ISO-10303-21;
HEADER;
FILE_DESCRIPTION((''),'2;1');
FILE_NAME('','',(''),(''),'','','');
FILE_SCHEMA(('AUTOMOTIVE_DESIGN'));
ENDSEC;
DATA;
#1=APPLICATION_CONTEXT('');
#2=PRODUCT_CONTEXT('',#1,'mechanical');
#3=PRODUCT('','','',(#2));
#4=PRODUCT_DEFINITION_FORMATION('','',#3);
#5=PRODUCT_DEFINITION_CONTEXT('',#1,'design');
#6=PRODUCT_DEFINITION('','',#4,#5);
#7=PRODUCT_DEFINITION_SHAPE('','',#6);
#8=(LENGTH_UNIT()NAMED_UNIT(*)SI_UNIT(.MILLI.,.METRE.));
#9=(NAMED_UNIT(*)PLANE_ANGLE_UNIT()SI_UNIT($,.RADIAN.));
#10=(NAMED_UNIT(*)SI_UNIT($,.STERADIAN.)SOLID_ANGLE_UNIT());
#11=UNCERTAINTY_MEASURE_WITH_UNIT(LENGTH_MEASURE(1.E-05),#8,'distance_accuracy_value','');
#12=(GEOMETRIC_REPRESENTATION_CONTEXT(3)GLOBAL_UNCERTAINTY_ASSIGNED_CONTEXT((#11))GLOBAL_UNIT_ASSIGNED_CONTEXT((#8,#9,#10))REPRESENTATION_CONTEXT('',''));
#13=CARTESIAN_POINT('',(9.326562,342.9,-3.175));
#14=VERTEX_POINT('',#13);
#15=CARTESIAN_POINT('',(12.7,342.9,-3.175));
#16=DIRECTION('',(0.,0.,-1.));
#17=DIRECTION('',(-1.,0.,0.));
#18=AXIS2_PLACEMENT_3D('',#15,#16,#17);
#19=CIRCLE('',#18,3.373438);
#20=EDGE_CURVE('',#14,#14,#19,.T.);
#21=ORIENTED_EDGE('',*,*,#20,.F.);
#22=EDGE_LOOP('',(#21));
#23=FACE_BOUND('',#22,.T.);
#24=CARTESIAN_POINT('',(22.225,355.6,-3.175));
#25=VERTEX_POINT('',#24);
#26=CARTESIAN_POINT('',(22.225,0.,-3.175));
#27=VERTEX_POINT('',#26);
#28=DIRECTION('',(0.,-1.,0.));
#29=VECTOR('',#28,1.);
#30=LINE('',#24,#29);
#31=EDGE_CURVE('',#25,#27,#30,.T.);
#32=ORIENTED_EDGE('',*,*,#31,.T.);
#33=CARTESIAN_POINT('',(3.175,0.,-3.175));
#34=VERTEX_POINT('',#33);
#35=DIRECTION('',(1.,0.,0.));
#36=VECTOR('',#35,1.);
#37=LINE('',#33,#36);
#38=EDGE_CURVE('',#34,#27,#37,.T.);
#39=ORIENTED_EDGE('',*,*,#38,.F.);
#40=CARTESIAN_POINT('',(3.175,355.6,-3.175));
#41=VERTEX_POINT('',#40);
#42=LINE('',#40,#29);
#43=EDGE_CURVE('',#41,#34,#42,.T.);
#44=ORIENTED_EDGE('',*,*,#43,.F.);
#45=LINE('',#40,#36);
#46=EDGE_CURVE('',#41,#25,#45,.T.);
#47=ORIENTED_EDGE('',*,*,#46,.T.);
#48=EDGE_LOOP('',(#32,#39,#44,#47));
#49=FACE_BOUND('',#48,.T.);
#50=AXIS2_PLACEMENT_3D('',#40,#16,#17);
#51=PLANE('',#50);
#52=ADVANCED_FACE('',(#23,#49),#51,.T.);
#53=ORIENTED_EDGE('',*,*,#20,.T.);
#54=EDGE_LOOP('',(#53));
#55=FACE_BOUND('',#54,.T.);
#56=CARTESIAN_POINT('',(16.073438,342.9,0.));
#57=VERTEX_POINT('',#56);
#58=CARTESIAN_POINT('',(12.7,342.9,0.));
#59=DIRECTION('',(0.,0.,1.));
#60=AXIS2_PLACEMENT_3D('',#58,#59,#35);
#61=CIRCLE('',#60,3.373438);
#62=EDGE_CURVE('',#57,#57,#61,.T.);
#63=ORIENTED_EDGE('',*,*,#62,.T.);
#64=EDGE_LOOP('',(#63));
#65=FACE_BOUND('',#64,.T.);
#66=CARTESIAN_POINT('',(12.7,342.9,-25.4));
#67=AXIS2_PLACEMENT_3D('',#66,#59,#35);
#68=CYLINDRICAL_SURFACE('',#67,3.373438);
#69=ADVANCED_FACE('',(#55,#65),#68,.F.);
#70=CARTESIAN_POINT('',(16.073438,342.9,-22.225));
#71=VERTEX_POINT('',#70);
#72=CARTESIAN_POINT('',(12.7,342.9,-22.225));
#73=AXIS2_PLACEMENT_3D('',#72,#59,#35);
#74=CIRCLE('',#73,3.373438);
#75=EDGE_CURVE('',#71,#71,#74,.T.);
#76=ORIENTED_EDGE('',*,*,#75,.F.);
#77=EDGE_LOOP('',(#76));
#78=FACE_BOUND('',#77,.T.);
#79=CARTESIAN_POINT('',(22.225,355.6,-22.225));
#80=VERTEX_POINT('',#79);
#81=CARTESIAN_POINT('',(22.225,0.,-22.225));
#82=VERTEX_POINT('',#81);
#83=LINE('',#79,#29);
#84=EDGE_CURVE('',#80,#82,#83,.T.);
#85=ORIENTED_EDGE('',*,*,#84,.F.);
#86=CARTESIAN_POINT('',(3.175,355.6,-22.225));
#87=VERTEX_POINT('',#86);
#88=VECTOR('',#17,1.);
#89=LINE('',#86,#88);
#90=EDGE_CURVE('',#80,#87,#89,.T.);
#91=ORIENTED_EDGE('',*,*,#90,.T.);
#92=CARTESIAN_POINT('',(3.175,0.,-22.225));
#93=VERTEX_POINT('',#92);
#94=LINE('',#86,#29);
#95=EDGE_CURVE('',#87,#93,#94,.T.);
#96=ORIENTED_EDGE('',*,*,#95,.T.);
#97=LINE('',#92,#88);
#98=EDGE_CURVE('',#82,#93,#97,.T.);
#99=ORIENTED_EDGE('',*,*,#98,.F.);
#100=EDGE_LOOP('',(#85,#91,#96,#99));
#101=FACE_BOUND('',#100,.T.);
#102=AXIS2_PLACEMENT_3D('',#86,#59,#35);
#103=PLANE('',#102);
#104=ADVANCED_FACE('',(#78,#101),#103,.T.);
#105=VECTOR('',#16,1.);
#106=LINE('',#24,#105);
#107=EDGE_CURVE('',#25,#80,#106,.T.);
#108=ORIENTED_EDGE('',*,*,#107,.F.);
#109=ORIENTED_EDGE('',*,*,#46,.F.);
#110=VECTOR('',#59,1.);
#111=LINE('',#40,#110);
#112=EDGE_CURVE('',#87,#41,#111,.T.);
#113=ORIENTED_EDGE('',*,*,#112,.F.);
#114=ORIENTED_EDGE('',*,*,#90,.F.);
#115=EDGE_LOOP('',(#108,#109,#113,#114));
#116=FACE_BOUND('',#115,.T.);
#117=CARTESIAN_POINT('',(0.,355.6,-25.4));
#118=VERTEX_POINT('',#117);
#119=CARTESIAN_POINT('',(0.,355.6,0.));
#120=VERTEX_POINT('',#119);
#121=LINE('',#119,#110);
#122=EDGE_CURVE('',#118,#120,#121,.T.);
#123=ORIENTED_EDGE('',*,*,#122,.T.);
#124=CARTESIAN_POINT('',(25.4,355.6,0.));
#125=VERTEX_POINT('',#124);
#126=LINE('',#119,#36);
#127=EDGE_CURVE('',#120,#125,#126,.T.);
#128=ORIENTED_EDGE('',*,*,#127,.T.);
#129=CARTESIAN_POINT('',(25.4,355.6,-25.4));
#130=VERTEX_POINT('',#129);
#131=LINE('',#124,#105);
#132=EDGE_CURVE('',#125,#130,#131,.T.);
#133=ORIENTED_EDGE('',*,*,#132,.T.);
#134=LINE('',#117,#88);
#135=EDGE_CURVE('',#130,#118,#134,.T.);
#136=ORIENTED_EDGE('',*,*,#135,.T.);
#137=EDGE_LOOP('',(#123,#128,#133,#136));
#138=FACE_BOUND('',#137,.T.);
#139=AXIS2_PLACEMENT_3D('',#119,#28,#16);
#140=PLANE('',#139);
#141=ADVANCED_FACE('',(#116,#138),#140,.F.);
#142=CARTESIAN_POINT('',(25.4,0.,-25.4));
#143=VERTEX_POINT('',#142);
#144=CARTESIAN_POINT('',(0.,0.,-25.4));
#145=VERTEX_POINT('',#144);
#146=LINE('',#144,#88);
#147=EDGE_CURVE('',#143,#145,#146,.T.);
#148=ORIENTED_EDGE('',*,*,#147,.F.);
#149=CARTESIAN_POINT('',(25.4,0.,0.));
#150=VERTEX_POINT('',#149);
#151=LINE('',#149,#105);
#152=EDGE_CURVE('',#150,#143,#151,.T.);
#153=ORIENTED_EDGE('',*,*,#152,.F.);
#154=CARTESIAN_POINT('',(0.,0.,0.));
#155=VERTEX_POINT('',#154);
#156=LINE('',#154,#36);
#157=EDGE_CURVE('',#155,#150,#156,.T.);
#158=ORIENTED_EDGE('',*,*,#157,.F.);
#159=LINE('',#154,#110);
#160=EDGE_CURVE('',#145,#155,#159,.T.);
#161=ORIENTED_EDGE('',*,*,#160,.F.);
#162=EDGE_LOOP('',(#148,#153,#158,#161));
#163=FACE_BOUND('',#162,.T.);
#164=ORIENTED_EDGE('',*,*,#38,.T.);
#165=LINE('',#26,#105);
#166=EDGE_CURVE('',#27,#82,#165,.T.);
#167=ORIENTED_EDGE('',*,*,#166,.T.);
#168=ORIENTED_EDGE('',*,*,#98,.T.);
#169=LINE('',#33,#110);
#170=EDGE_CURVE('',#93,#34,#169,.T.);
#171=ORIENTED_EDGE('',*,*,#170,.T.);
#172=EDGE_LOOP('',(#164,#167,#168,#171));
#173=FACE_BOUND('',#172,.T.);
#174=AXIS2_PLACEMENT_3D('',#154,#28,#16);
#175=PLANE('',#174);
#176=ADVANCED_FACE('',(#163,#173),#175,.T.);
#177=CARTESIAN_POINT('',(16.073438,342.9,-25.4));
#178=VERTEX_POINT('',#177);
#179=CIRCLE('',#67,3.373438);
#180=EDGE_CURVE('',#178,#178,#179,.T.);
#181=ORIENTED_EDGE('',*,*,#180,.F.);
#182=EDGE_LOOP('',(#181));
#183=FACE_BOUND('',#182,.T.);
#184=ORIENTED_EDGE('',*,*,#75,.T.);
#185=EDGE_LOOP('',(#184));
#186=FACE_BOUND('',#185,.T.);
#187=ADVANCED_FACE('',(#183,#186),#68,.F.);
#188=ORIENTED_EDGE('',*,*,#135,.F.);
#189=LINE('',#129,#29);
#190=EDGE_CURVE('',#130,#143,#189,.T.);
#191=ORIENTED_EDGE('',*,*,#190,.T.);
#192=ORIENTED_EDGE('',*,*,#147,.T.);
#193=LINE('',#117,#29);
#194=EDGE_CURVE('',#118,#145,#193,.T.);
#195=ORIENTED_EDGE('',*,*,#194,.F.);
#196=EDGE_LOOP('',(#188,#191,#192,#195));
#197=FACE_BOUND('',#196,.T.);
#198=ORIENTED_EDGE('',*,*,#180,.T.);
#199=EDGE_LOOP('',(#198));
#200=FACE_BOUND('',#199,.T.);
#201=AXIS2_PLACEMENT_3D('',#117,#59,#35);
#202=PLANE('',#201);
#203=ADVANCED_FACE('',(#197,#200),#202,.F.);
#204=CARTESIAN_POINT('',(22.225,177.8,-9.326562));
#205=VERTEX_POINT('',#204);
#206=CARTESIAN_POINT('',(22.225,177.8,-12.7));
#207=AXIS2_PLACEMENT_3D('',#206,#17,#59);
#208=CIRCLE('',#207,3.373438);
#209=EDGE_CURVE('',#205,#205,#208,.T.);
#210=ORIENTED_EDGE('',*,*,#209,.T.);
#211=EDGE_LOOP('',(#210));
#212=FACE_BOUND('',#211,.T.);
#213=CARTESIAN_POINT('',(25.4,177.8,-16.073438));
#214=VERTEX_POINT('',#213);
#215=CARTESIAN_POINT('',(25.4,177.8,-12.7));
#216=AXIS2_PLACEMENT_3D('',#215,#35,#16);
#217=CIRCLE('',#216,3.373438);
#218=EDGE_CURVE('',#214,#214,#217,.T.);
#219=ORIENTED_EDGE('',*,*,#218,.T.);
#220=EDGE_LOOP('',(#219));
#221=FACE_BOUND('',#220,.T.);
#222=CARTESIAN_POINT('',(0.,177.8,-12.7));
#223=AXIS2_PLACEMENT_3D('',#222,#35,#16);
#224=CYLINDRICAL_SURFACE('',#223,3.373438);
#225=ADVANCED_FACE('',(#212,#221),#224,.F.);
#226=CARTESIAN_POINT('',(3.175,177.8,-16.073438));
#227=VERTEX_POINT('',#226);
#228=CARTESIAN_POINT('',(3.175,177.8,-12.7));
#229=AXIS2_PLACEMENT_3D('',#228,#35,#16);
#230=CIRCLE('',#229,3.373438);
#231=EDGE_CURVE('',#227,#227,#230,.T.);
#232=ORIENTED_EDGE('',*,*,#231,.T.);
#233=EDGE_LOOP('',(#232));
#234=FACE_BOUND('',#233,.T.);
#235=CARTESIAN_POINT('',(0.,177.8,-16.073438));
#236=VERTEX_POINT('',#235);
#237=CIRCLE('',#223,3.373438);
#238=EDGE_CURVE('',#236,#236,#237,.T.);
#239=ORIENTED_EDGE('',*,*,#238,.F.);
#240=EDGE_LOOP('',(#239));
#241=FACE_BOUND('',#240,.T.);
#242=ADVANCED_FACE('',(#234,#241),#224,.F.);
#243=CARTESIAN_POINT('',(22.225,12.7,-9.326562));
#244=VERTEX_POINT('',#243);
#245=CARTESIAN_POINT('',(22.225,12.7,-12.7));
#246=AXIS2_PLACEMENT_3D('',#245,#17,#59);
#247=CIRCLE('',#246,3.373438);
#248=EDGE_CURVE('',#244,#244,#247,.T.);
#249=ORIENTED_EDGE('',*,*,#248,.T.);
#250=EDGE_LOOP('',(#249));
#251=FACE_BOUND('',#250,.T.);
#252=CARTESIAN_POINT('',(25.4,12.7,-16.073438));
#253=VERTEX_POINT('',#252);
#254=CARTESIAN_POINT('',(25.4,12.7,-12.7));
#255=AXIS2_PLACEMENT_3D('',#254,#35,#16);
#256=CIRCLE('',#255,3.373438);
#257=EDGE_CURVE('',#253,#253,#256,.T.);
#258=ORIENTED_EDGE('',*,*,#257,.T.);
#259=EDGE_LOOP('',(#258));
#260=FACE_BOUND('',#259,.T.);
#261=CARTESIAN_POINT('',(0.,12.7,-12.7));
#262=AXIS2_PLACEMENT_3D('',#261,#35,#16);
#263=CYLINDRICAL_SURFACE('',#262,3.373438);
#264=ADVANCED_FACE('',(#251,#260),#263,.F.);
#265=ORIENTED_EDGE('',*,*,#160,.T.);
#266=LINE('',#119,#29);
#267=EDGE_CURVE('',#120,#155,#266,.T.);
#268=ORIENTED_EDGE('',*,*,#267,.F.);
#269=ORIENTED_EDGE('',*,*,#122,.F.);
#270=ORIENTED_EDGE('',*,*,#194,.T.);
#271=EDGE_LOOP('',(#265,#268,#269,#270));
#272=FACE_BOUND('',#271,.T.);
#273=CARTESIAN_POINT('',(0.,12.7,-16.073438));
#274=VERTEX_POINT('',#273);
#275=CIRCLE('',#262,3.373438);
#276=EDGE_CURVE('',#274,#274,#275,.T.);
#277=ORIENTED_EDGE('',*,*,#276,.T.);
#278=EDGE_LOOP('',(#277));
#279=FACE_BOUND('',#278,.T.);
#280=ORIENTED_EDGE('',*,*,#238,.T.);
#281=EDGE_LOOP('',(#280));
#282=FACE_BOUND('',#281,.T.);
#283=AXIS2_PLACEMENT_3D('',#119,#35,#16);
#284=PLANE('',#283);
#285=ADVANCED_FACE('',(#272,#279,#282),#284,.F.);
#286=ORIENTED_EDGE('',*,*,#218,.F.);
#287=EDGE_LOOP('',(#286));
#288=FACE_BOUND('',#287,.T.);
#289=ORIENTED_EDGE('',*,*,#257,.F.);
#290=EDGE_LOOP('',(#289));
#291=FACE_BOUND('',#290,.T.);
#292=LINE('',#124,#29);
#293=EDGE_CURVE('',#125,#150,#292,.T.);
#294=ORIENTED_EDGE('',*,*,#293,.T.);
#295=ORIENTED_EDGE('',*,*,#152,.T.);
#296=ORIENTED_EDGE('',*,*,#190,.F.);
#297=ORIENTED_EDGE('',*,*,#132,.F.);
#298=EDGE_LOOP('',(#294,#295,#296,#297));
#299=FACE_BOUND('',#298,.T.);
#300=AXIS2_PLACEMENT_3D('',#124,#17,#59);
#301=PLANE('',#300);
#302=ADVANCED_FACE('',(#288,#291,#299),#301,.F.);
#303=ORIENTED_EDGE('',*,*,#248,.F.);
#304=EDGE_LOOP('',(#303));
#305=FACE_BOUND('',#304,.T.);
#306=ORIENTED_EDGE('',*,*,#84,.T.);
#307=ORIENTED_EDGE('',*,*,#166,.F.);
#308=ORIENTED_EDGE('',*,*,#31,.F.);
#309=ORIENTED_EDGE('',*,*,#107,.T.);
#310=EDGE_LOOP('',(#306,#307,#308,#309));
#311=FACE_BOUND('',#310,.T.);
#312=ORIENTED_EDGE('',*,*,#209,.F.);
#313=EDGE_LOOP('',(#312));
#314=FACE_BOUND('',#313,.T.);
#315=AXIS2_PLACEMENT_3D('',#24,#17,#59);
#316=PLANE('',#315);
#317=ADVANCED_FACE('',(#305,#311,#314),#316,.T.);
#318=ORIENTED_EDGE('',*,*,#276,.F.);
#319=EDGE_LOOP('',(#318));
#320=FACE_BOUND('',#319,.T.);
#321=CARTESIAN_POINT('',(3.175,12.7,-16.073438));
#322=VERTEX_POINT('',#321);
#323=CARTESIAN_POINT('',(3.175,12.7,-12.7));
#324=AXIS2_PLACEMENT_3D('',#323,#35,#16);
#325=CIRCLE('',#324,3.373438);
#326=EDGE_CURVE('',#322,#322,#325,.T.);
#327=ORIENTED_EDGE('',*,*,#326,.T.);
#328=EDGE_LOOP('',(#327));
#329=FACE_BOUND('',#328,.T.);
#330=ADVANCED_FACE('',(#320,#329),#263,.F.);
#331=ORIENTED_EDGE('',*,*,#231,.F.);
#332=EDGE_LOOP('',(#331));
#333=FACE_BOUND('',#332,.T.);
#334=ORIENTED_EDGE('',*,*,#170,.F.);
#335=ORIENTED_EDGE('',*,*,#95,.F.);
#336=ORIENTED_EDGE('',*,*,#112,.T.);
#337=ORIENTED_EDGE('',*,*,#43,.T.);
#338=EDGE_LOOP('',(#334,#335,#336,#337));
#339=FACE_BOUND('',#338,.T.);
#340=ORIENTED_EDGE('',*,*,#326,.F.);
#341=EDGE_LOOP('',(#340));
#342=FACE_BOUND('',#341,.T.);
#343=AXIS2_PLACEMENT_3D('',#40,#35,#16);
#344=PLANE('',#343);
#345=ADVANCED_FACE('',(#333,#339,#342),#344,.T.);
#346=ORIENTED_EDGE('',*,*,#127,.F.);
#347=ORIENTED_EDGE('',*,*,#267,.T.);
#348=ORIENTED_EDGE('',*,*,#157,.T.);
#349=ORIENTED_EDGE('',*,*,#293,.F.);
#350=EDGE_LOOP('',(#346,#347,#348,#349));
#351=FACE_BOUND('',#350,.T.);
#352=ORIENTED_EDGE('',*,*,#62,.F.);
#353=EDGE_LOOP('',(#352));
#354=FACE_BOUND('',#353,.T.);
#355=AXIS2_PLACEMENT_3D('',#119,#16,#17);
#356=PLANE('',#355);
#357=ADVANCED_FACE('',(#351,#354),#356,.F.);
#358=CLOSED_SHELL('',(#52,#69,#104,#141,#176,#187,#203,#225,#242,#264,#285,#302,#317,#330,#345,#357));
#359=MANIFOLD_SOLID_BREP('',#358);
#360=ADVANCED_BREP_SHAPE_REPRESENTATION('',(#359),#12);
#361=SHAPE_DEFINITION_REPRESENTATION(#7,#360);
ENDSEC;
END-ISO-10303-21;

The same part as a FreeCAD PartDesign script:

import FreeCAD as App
import Part
import Sketcher

V = App.Vector
Q = App.Units.Quantity

doc = App.newDocument("Part")
body = doc.addObject("PartDesign::Body", "Body")

# Sketch on XZ plane
sketch1 = body.newObject("Sketcher::SketchObject", "Sketch")
sketch1.AttachmentSupport = (doc.getObject("XZ_Plane"), [""])
sketch1.MapMode = "FlatFace"
sketch1.addGeometry([
    Part.LineSegment(V(0, -25, 0), V(0, 0, 0)),  # 0
    Part.LineSegment(V(0, 0, 0), V(25, 0, 0)),  # 1
    Part.LineSegment(V(25, 0, 0), V(25, -25, 0)),  # 2
    Part.LineSegment(V(25, -25, 0), V(0, -25, 0)),  # 3
    Part.LineSegment(V(22, -3, 0), V(3, -3, 0)),  # 4
    Part.LineSegment(V(3, -3, 0), V(3, -22, 0)),  # 5
    Part.LineSegment(V(3, -22, 0), V(22, -22, 0)),  # 6
    Part.LineSegment(V(22, -22, 0), V(22, -3, 0)),  # 7
], False)
sketch1.addConstraint([
    Sketcher.Constraint("Coincident", 0, 2, 1, 1),
    Sketcher.Constraint("Coincident", 1, 2, 2, 1),
    Sketcher.Constraint("Coincident", 2, 2, 3, 1),
    Sketcher.Constraint("Coincident", 3, 2, 0, 1),
    Sketcher.Constraint("Coincident", 4, 2, 5, 1),
    Sketcher.Constraint("Coincident", 5, 2, 6, 1),
    Sketcher.Constraint("Coincident", 6, 2, 7, 1),
    Sketcher.Constraint("Coincident", 7, 2, 4, 1),
    Sketcher.Constraint("Vertical", 0),
    Sketcher.Constraint("Horizontal", 1),
    Sketcher.Constraint("Vertical", 2),
    Sketcher.Constraint("Horizontal", 3),
    Sketcher.Constraint("Horizontal", 4),
    Sketcher.Constraint("Vertical", 5),
    Sketcher.Constraint("Horizontal", 6),
    Sketcher.Constraint("Vertical", 7),
    Sketcher.Constraint("Coincident", 0, 2, -1, 1),
    Sketcher.Constraint("Equal", 3, 0),
    Sketcher.Constraint("Equal", 6, 5),
    Sketcher.Constraint("DistanceX", 1, 1, 1, 2, Q("1 in")),
    Sketcher.Constraint("DistanceX", 4, 2, 4, 1, Q("0.75 in")),
    Sketcher.Constraint("DistanceX", -1, 1, 4, 2, Q("0.125 in")),
    Sketcher.Constraint("DistanceY", 4, 2, -1, 1, Q("0.125 in")),
])
pad1 = body.newObject("PartDesign::Pad", "Pad")
pad1.Profile = sketch1
pad1.Length = Q("14 in")
pad1.Reversed = True

# Sketch on YZ plane
sketch2 = body.newObject("Sketcher::SketchObject", "Sketch001")
sketch2.AttachmentSupport = (doc.getObject("YZ_Plane"), [""])
sketch2.MapMode = "FlatFace"
sketch2.addGeometry([
    Part.Circle(V(12.7, -12.7, 0), V(0, 0, 1), 3.4),
    Part.Circle(V(177.8, -12.7, 0), V(0, 0, 1), 3.4),
], False)
sketch2.addConstraint([
    Sketcher.Constraint("Equal", 0, 1),
    Sketcher.Constraint("Horizontal", 0, 3, 1, 3),
    Sketcher.Constraint("Diameter", 0, Q("0.265625 in")),
    Sketcher.Constraint("DistanceX", -1, 1, 1, 3, Q("7 in")),
    Sketcher.Constraint("DistanceX", -1, 1, 0, 3, Q("0.5 in")),
    Sketcher.Constraint("DistanceY", 0, 3, -1, 1, Q("0.5 in")),
])
pocket1 = body.newObject("PartDesign::Pocket", "Pocket")
pocket1.Profile = sketch2
pocket1.Length = Q("1 in")
pocket1.Reversed = True

# Sketch on XY plane
sketch3 = body.newObject("Sketcher::SketchObject", "Sketch002")
sketch3.AttachmentSupport = (doc.getObject("XY_Plane"), [""])
sketch3.MapMode = "FlatFace"
sketch3.AttachmentOffset = App.Placement(V(0, 0, -1 * 25.4), App.Rotation())
sketch3.addGeometry(Part.Circle(V(12.7, 342.9, 0), V(0, 0, 1), 3.4), False)
sketch3.addConstraint([
    Sketcher.Constraint("Diameter", 0, Q("0.265625 in")),
    Sketcher.Constraint("DistanceX", -1, 1, 0, 3, Q("0.5 in")),
    Sketcher.Constraint("DistanceY", -1, 1, 0, 3, Q("13.5 in")),
])
pocket2 = body.newObject("PartDesign::Pocket", "Pocket001")
pocket2.Profile = sketch3
pocket2.Length = Q("1 in")
pocket2.Reversed = True

doc.recompute()
